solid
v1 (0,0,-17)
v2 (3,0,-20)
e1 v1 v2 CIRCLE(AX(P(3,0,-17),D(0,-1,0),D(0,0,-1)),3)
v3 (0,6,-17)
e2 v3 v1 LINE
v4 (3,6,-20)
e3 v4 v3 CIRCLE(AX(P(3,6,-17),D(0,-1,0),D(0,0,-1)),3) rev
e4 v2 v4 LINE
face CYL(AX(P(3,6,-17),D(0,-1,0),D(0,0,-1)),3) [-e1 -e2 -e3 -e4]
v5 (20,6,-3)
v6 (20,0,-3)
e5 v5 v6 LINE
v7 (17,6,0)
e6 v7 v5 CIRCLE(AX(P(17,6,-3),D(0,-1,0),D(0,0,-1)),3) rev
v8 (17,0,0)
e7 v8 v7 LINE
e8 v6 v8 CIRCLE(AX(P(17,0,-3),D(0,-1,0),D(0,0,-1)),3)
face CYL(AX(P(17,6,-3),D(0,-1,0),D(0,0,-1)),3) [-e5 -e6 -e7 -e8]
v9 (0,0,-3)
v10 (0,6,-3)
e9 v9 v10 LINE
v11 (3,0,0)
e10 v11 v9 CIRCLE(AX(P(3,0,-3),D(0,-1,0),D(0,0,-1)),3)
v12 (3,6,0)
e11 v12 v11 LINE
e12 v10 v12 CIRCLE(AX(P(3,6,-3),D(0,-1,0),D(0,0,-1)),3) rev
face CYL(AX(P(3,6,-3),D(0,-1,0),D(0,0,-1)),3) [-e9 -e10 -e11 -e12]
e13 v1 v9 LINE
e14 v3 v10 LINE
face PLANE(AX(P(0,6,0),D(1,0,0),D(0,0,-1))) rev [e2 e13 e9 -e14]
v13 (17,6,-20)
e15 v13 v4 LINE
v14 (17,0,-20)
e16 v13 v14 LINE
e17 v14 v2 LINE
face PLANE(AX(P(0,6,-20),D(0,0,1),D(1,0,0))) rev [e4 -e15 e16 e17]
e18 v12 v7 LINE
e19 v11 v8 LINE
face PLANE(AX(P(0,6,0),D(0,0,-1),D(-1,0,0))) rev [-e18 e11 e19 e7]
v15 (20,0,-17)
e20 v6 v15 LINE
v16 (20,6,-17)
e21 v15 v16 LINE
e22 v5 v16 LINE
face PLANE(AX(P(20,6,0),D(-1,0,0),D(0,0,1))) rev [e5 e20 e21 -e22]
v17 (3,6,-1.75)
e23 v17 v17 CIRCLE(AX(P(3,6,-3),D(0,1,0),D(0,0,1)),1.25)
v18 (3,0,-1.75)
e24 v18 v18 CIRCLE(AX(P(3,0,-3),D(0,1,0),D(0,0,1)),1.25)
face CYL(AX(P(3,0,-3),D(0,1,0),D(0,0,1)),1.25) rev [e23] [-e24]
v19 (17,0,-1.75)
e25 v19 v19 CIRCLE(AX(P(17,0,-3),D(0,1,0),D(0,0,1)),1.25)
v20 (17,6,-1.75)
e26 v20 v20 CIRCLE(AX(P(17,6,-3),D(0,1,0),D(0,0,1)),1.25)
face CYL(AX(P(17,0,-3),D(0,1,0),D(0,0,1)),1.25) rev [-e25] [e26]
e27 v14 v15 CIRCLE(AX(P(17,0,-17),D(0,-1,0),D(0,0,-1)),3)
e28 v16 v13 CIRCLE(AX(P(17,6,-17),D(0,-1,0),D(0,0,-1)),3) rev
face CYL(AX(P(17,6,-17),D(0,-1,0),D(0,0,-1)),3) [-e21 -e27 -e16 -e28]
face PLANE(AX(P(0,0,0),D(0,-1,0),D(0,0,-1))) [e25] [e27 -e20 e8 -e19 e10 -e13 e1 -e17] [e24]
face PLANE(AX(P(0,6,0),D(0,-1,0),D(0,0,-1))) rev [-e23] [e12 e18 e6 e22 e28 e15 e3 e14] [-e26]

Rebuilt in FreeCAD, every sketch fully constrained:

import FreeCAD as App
import Part
import Sketcher

V = App.Vector
Q = App.Units.Quantity


def edges_at(feature, points):
    """Names of the edges that pass closest to the given points."""
    edges = feature.Shape.Edges
    near = lambda p: min(range(len(edges)), key=lambda i: edges[i].distToShape(Part.Vertex(*p))[0])
    return sorted({f"Edge{near(p) + 1}" for p in points})

doc = App.newDocument("Part")
params = doc.addObject("Spreadsheet::Sheet", "Params")
for row, (alias, value) in enumerate([
    ("sketch1_width", "20 mm"),
    ("pad1_length", "6 mm"),
    ("fillet_radius", "3 mm"),
    ("sketch2_diameter", "2.5 mm"),
], start=1):
    params.set(f"A{row}", alias)
    params.set(f"B{row}", "=" + value)
    params.setAlias(f"B{row}", alias)

body = doc.addObject("PartDesign::Body", "Body")

# Sketch on XZ plane
sketch1 = body.newObject("Sketcher::SketchObject", "Sketch")
sketch1.AttachmentSupport = (doc.getObject("XZ_Plane"), [""])
sketch1.MapMode = "FlatFace"
sketch1.addGeometry(Part.LineSegment(V(0, -20, 0), V(0, 0, 0)), False)
sketch1.addGeometry(Part.LineSegment(V(0, 0, 0), V(20, 0, 0)), False)
sketch1.addGeometry(Part.LineSegment(V(20, 0, 0), V(20, -20, 0)), False)
sketch1.addGeometry(Part.LineSegment(V(20, -20, 0), V(0, -20, 0)), False)
sketch1.addConstraint(Sketcher.Constraint("Coincident", 0, 2, 1, 1))
sketch1.addConstraint(Sketcher.Constraint("Coincident", 1, 2, 2, 1))
sketch1.addConstraint(Sketcher.Constraint("Coincident", 2, 2, 3, 1))
sketch1.addConstraint(Sketcher.Constraint("Coincident", 3, 2, 0, 1))
sketch1.addConstraint(Sketcher.Constraint("Vertical", 0))
sketch1.addConstraint(Sketcher.Constraint("Horizontal", 1))
sketch1.addConstraint(Sketcher.Constraint("Vertical", 2))
sketch1.addConstraint(Sketcher.Constraint("Horizontal", 3))
sketch1.addConstraint(Sketcher.Constraint("Coincident", 0, 2, -1, 1))
sketch1.addConstraint(Sketcher.Constraint("Equal", 3, 0))
sketch1.addConstraint(Sketcher.Constraint("DistanceX", 1, 1, 1, 2, Q("20 mm")))
sketch1.setExpression("Constraints[10]", "Params.sketch1_width")
pad1 = body.newObject("PartDesign::Pad", "Pad")
pad1.Profile = sketch1
pad1.setExpression("Length", "Params.pad1_length")
pad1.Reversed = True
doc.recompute()

fillet = body.newObject("PartDesign::Fillet", "Fillet")
fillet.Base = (pad1, edges_at(pad1, [
    (0, 3, -20),
    (20, 3, -20),
    (20, 3, 0),
    (0, 3, 0),
]))
fillet.setExpression("Radius", "Params.fillet_radius")

# Sketch on XZ plane
sketch2 = body.newObject("Sketcher::SketchObject", "Sketch001")
sketch2.AttachmentSupport = (doc.getObject("XZ_Plane"), [""])
sketch2.MapMode = "FlatFace"
sketch2.AttachmentOffset = App.Placement(V(0, 0, -6), App.Rotation())
sketch2.addGeometry(Part.Circle(V(3, -3, 0), V(0, 0, 1), 1.2), False)
sketch2.addGeometry(Part.Circle(V(17, -3, 0), V(0, 0, 1), 1.2), False)
sketch2.addConstraint(Sketcher.Constraint("Equal", 0, 1))
sketch2.addConstraint(Sketcher.Constraint("Horizontal", 0, 3, 1, 3))
sketch2.addConstraint(Sketcher.Constraint("Diameter", 0, Q("2.5 mm")))
sketch2.addConstraint(Sketcher.Constraint("DistanceX", -1, 1, 0, 3, Q("3 mm")))
sketch2.addConstraint(Sketcher.Constraint("DistanceY", 0, 3, -1, 1, Q("3 mm")))
sketch2.addConstraint(Sketcher.Constraint("DistanceX", -1, 1, 1, 3, Q("17 mm")))
sketch2.setExpression("Constraints[2]", "Params.sketch2_diameter")
pocket1 = body.newObject("PartDesign::Pocket", "Pocket")
pocket1.Profile = sketch2
pocket1.Type = "ThroughAll"
pocket1.Midplane = True

doc.recompute()
